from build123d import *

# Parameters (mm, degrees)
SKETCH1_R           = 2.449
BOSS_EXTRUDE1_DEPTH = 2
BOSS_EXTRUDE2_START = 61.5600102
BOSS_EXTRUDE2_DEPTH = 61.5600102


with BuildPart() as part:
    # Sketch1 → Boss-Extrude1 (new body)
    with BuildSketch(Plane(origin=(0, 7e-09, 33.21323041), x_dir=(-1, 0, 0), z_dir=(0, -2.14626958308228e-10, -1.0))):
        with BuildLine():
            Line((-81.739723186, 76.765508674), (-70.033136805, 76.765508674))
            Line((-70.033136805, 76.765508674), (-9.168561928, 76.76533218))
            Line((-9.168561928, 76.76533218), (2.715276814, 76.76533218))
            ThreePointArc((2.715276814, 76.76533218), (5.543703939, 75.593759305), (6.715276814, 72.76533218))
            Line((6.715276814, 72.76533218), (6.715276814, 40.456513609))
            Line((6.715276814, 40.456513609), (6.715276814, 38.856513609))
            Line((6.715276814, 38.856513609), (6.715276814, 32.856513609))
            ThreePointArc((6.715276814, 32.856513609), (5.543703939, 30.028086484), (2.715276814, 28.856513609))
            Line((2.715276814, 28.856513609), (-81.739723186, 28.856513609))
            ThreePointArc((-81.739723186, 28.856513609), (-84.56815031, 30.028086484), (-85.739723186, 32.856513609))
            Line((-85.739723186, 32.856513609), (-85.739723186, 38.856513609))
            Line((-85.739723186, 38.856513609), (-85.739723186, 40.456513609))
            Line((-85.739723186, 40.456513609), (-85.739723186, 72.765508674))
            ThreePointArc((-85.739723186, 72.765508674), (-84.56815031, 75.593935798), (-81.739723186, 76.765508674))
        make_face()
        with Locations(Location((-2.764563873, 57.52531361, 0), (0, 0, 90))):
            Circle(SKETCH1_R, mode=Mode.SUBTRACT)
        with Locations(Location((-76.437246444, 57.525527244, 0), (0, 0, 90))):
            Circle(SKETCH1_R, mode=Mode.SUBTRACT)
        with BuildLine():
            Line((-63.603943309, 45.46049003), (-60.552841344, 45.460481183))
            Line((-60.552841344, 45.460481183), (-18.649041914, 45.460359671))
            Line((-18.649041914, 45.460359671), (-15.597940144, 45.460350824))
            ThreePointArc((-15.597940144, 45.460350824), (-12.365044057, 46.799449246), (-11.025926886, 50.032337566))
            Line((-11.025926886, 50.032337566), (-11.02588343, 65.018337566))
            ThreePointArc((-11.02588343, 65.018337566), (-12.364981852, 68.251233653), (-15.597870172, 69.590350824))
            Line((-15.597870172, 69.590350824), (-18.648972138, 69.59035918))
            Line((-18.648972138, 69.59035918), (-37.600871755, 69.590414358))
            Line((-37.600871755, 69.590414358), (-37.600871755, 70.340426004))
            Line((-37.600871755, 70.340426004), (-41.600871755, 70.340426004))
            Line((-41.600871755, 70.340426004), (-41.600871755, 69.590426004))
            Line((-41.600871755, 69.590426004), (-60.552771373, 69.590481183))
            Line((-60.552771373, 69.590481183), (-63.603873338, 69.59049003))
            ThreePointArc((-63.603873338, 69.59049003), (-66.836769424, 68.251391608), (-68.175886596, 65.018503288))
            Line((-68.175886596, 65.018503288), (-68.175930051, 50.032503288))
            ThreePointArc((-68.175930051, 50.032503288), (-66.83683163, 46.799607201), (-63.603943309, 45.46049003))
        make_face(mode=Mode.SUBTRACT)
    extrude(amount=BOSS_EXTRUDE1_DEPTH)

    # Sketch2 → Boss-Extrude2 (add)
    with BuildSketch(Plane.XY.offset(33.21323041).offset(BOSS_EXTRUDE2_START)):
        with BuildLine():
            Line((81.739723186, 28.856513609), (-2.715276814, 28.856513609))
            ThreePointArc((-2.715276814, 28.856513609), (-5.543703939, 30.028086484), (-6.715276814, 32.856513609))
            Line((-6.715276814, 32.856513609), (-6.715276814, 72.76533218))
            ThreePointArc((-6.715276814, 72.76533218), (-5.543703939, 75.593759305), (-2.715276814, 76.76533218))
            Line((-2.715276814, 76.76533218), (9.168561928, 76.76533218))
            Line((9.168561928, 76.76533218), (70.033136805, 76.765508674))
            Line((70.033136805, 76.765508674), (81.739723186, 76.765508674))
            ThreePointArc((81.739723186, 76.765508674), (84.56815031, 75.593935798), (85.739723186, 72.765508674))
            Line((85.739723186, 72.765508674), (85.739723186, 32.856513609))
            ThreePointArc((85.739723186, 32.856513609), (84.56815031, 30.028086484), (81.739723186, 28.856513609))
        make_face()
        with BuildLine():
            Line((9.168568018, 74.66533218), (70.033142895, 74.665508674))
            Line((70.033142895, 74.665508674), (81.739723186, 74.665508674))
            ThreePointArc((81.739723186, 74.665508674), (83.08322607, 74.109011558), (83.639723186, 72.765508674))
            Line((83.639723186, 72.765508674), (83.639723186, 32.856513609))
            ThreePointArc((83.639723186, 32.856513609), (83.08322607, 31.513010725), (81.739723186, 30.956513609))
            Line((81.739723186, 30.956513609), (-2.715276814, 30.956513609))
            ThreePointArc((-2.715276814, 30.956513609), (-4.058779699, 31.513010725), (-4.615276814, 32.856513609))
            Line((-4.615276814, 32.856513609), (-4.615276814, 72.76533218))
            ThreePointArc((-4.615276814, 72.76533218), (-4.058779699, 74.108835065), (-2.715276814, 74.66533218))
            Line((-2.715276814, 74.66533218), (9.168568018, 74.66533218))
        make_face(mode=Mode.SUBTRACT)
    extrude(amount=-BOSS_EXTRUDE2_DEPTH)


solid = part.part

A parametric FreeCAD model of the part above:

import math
import FreeCAD as App
import Part
import Sketcher

V = App.Vector

doc = App.newDocument("Part")
body = doc.addObject("PartDesign::Body", "Body")

# Sketch on XY plane
sketch1 = body.newObject("Sketcher::SketchObject", "Sketch")
sketch1.AttachmentSupport = (doc.getObject("XY_Plane"), [""])
sketch1.MapMode = "FlatFace"
sketch1.AttachmentOffset = App.Placement(V(0, 0, 33.21323), App.Rotation())
sketch1.addGeometry([
    Part.LineSegment(V(70, 76.8, 0), V(81.7, 76.8, 0)),  # 0
    Part.ArcOfCircle(Part.Circle(V(81.7, 72.8, 0), V(0, 0, 1), 4), math.radians(0), math.radians(90)),  # 1
    Part.LineSegment(V(85.7, 72.8, 0), V(85.7, 32.9, 0)),  # 2
    Part.ArcOfCircle(Part.Circle(V(81.7, 32.9, 0), V(0, 0, 1), 4), math.radians(-90), math.radians(0)),  # 3
    Part.LineSegment(V(81.7, 28.9, 0), V(-2.7, 28.9, 0)),  # 4
    Part.ArcOfCircle(Part.Circle(V(-2.7, 32.9, 0), V(0, 0, 1), 4), math.radians(180), math.radians(270)),  # 5
    Part.LineSegment(V(-6.7, 32.9, 0), V(-6.7, 72.8, 0)),  # 6
    Part.ArcOfCircle(Part.Circle(V(-2.7, 72.8, 0), V(0, 0, 1), 4), math.radians(90), math.radians(180)),  # 7
    Part.LineSegment(V(-2.7, 76.8, 0), V(9.2, 76.8, 0)),  # 8
    Part.LineSegment(V(9.2, 76.8, 0), V(70, 76.8, 0)),  # 9
    Part.Circle(V(2.8, 57.5, 0), V(0, 0, 1), 2.4),  # 10
    Part.ArcOfCircle(Part.Circle(V(63.6, 50, 0), V(0, 0, 1), 4.6), math.radians(-90), math.radians(0)),  # 11
    Part.LineSegment(V(68.2, 50, 0), V(68.2, 65, 0)),  # 12
    Part.ArcOfCircle(Part.Circle(V(63.6, 65, 0), V(0, 0, 1), 4.6), math.radians(0), math.radians(90)),  # 13
    Part.LineSegment(V(63.6, 69.6, 0), V(60.6, 69.6, 0)),  # 14
    Part.LineSegment(V(60.6, 69.6, 0), V(41.6, 69.6, 0)),  # 15
    Part.LineSegment(V(41.6, 69.6, 0), V(41.6, 70.3, 0)),  # 16
    Part.LineSegment(V(41.6, 70.3, 0), V(37.6, 70.3, 0)),  # 17
    Part.LineSegment(V(37.6, 70.3, 0), V(37.6, 69.6, 0)),  # 18
    Part.LineSegment(V(37.6, 69.6, 0), V(18.6, 69.6, 0)),  # 19
    Part.LineSegment(V(18.6, 69.6, 0), V(15.6, 69.6, 0)),  # 20
    Part.ArcOfCircle(Part.Circle(V(15.6, 65, 0), V(0, 0, 1), 4.6), math.radians(90), math.radians(180)),  # 21
    Part.LineSegment(V(11, 65, 0), V(11, 50, 0)),  # 22
    Part.ArcOfCircle(Part.Circle(V(15.6, 50, 0), V(0, 0, 1), 4.6), math.radians(-180), math.radians(-90)),  # 23
    Part.LineSegment(V(15.6, 45.5, 0), V(18.6, 45.5, 0)),  # 24
    Part.LineSegment(V(18.6, 45.5, 0), V(60.6, 45.5, 0)),  # 25
    Part.LineSegment(V(60.6, 45.5, 0), V(63.6, 45.5, 0)),  # 26
    Part.Circle(V(76.4, 57.5, 0), V(0, 0, 1), 2.4),  # 27
], False)
sketch1.addConstraint([
    Sketcher.Constraint("Tangent", 0, 2, 1, 2),
    Sketcher.Constraint("Tangent", 1, 1, 2, 1),
    Sketcher.Constraint("Tangent", 2, 2, 3, 2),
    Sketcher.Constraint("Tangent", 3, 1, 4, 1),
    Sketcher.Constraint("Tangent", 4, 2, 5, 2),
    Sketcher.Constraint("Tangent", 5, 1, 6, 1),
    Sketcher.Constraint("Tangent", 6, 2, 7, 2),
    Sketcher.Constraint("Tangent", 7, 1, 8, 1),
    Sketcher.Constraint("Coincident", 8, 2, 9, 1),
    Sketcher.Constraint("Coincident", 9, 2, 0, 1),
    Sketcher.Constraint("Tangent", 11, 2, 12, 1),
    Sketcher.Constraint("Tangent", 12, 2, 13, 1),
    Sketcher.Constraint("Tangent", 13, 2, 14, 1),
    Sketcher.Constraint("Coincident", 14, 2, 15, 1),
    Sketcher.Constraint("Coincident", 15, 2, 16, 1),
    Sketcher.Constraint("Coincident", 16, 2, 17, 1),
    Sketcher.Constraint("Coincident", 17, 2, 18, 1),
    Sketcher.Constraint("Coincident", 18, 2, 19, 1),
    Sketcher.Constraint("Coincident", 19, 2, 20, 1),
    Sketcher.Constraint("Tangent", 20, 2, 21, 1),
    Sketcher.Constraint("Tangent", 21, 2, 22, 1),
    Sketcher.Constraint("Tangent", 22, 2, 23, 1),
    Sketcher.Constraint("Tangent", 23, 2, 24, 1),
    Sketcher.Constraint("Coincident", 24, 2, 25, 1),
    Sketcher.Constraint("Coincident", 25, 2, 26, 1),
    Sketcher.Constraint("Tangent", 26, 2, 11, 1),
    Sketcher.Constraint("Horizontal", 0),
    Sketcher.Constraint("Vertical", 2),
    Sketcher.Constraint("Horizontal", 4),
    Sketcher.Constraint("Vertical", 6),
    Sketcher.Constraint("Horizontal", 8),
    Sketcher.Constraint("Vertical", 16),
    Sketcher.Constraint("Horizontal", 17),
    Sketcher.Constraint("Vertical", 18),
    Sketcher.Constraint("Equal", 1, 3),
    Sketcher.Constraint("Equal", 3, 5),
    Sketcher.Constraint("Equal", 5, 7),
    Sketcher.Constraint("Equal", 11, 13),
    Sketcher.Constraint("Equal", 13, 21),
    Sketcher.Constraint("Equal", 21, 23),
    Sketcher.Constraint("Equal", 10, 27),
    Sketcher.Constraint("Perpendicular", 9, 12),
    Sketcher.Constraint("Perpendicular", 12, 14),
    Sketcher.Constraint("Parallel", 14, 15),
    Sketcher.Constraint("Parallel", 15, 19),
    Sketcher.Constraint("Parallel", 19, 20),
    Sketcher.Constraint("Perpendicular", 20, 22),
    Sketcher.Constraint("Perpendicular", 22, 24),
    Sketcher.Constraint("Parallel", 24, 25),
    Sketcher.Constraint("Parallel", 25, 26),
    Sketcher.Constraint("Equal", 15, 19),
    Sketcher.Constraint("Equal", 14, 20),
    Sketcher.Constraint("Equal", 12, 22),
    Sketcher.Constraint("Equal", 20, 24),
    Sketcher.Constraint("Equal", 24, 26),
    Sketcher.Constraint("Radius", 1, 4.0),
    Sketcher.Constraint("DistanceX", 17, 2, 17, 1, 4.0),
    Sketcher.Constraint("Diameter", 10, 4.898),
    Sketcher.Constraint("Radius", 11, 4.572),
    Sketcher.Constraint("DistanceY", 16, 1, 16, 2, 0.75),
    Sketcher.Constraint("DistanceX", 4, 2, 4, 1, 84.455),
    Sketcher.Constraint("Distance", 12, 14.986),
    Sketcher.Constraint("DistanceX", 10, 3, 8, 2, 6.403998),
    Sketcher.Constraint("DistanceX", 15, 2, 13, 2, 22.003002),
    Sketcher.Constraint("Distance", 14, 3.051102),
    Sketcher.Constraint("DistanceX", 8, 1, 8, 2, 11.883839),
    Sketcher.Constraint("DistanceY", 6, 1, 6, 2, 39.908819),
    Sketcher.Constraint("DistanceY", 18, 2, 18, 1, 0.750012),
    Sketcher.Constraint("DistanceY", 5, 3, 10, 3, 24.6688),
    Sketcher.Constraint("DistanceX", 0, 1, 0, 2, 11.706586),
    Sketcher.Constraint("DistanceY", -1, 1, 1, 3, 72.765509),
    Sketcher.Constraint("DistanceX", -1, 1, 11, 3, 63.60393),
    Sketcher.Constraint("DistanceY", -1, 1, 11, 3, 50.03249),
    Sketcher.Constraint("DistanceX", -1, 1, 8, 2, 9.168562),
    Sketcher.Constraint("DistanceX", 13, 3, 27, 3, 12.83336),
    Sketcher.Constraint("DistanceY", 27, 3, 1, 3, 15.239981),
])
pad1 = body.newObject("PartDesign::Pad", "Pad")
pad1.Profile = sketch1
pad1.Length = 2
pad1.Reversed = True

# Sketch on XY plane
sketch2 = body.newObject("Sketcher::SketchObject", "Sketch001")
sketch2.AttachmentSupport = (doc.getObject("XY_Plane"), [""])
sketch2.MapMode = "FlatFace"
sketch2.AttachmentOffset = App.Placement(V(0, 0, 94.773241), App.Rotation())
sketch2.addGeometry([
    Part.LineSegment(V(-2.7, 28.9, 0), V(81.7, 28.9, 0)),  # 0
    Part.ArcOfCircle(Part.Circle(V(81.7, 32.9, 0), V(0, 0, 1), 4), math.radians(-90), math.radians(0)),  # 1
    Part.LineSegment(V(85.7, 32.9, 0), V(85.7, 72.8, 0)),  # 2
    Part.ArcOfCircle(Part.Circle(V(81.7, 72.8, 0), V(0, 0, 1), 4), math.radians(0), math.radians(90)),  # 3
    Part.LineSegment(V(81.7, 76.8, 0), V(70, 76.8, 0)),  # 4
    Part.LineSegment(V(70, 76.8, 0), V(9.2, 76.8, 0)),  # 5
    Part.LineSegment(V(9.2, 76.8, 0), V(-2.7, 76.8, 0)),  # 6
    Part.ArcOfCircle(Part.Circle(V(-2.7, 72.8, 0), V(0, 0, 1), 4), math.radians(90), math.radians(180)),  # 7
    Part.LineSegment(V(-6.7, 72.8, 0), V(-6.7, 32.9, 0)),  # 8
    Part.ArcOfCircle(Part.Circle(V(-2.7, 32.9, 0), V(0, 0, 1), 4), math.radians(180), math.radians(270)),  # 9
    Part.LineSegment(V(9.2, 74.7, 0), V(70, 74.7, 0)),  # 10
    Part.LineSegment(V(70, 74.7, 0), V(81.7, 74.7, 0)),  # 11
    Part.ArcOfCircle(Part.Circle(V(81.7, 72.8, 0), V(0, 0, 1), 1.9), math.radians(0), math.radians(90)),  # 12
    Part.LineSegment(V(83.6, 72.8, 0), V(83.6, 32.9, 0)),  # 13
    Part.ArcOfCircle(Part.Circle(V(81.7, 32.9, 0), V(0, 0, 1), 1.9), math.radians(-90), math.radians(0)),  # 14
    Part.LineSegment(V(81.7, 31, 0), V(-2.7, 31, 0)),  # 15
    Part.ArcOfCircle(Part.Circle(V(-2.7, 32.9, 0), V(0, 0, 1), 1.9), math.radians(180), math.radians(270)),  # 16
    Part.LineSegment(V(-4.6, 32.9, 0), V(-4.6, 72.8, 0)),  # 17
    Part.ArcOfCircle(Part.Circle(V(-2.7, 72.8, 0), V(0, 0, 1), 1.9), math.radians(90), math.radians(180)),  # 18
    Part.LineSegment(V(-2.7, 74.7, 0), V(9.2, 74.7, 0)),  # 19
], False)
sketch2.addConstraint([
    Sketcher.Constraint("Tangent", 0, 2, 1, 1),
    Sketcher.Constraint("Tangent", 1, 2, 2, 1),
    Sketcher.Constraint("Tangent", 2, 2, 3, 1),
    Sketcher.Constraint("Tangent", 3, 2, 4, 1),
    Sketcher.Constraint("Coincident", 4, 2, 5, 1),
    Sketcher.Constraint("Coincident", 5, 2, 6, 1),
    Sketcher.Constraint("Tangent", 6, 2, 7, 1),
    Sketcher.Constraint("Tangent", 7, 2, 8, 1),
    Sketcher.Constraint("Tangent", 8, 2, 9, 1),
    Sketcher.Constraint("Tangent", 9, 2, 0, 1),
    Sketcher.Constraint("Coincident", 10, 2, 11, 1),
    Sketcher.Constraint("Tangent", 11, 2, 12, 2),
    Sketcher.Constraint("Tangent", 12, 1, 13, 1),
    Sketcher.Constraint("Tangent", 13, 2, 14, 2),
    Sketcher.Constraint("Tangent", 14, 1, 15, 1),
    Sketcher.Constraint("Tangent", 15, 2, 16, 2),
    Sketcher.Constraint("Tangent", 16, 1, 17, 1),
    Sketcher.Constraint("Tangent", 17, 2, 18, 2),
    Sketcher.Constraint("Tangent", 18, 1, 19, 1),
    Sketcher.Constraint("Coincident", 19, 2, 10, 1),
    Sketcher.Constraint("Horizontal", 0),
    Sketcher.Constraint("Vertical", 2),
    Sketcher.Constraint("Horizontal", 4),
    Sketcher.Constraint("Horizontal", 6),
    Sketcher.Constraint("Vertical", 8),
    Sketcher.Constraint("Horizontal", 11),
    Sketcher.Constraint("Vertical", 13),
    Sketcher.Constraint("Horizontal", 15),
    Sketcher.Constraint("Vertical", 17),
    Sketcher.Constraint("Horizontal", 19),
    Sketcher.Constraint("Coincident", 12, 3, 3, 3),
    Sketcher.Constraint("Coincident", 14, 3, 1, 3),
    Sketcher.Constraint("Coincident", 16, 3, 9, 3),
    Sketcher.Constraint("Coincident", 18, 3, 7, 3),
    Sketcher.Constraint("Equal", 1, 3),
    Sketcher.Constraint("Equal", 3, 7),
    Sketcher.Constraint("Equal", 7, 9),
    Sketcher.Constraint("Equal", 5, 10),
    Sketcher.Constraint("Radius", 1, 4.0),
    Sketcher.Constraint("Radius", 12, 1.9),
    Sketcher.Constraint("DistanceX", 0, 1, 0, 2, 84.455),
    Sketcher.Constraint("DistanceX", 6, 2, 6, 1, 11.883839),
    Sketcher.Constraint("DistanceX", 11, 1, 11, 2, 11.70658),
    Sketcher.Constraint("DistanceY", 8, 2, 8, 1, 39.908819),
    Sketcher.Constraint("DistanceX", 4, 2, 4, 1, 11.706586),
    Sketcher.Constraint("DistanceY", 2, 1, 2, 2, 39.908995),
    Sketcher.Constraint("DistanceY", -1, 1, 3, 3, 72.765509),
    Sketcher.Constraint("DistanceX", -1, 1, 5, 2, 9.168562),
])
pad2 = body.newObject("PartDesign::Pad", "Pad001")
pad2.Profile = sketch2
pad2.Length = 61.56001
pad2.Reversed = True

doc.recompute()
